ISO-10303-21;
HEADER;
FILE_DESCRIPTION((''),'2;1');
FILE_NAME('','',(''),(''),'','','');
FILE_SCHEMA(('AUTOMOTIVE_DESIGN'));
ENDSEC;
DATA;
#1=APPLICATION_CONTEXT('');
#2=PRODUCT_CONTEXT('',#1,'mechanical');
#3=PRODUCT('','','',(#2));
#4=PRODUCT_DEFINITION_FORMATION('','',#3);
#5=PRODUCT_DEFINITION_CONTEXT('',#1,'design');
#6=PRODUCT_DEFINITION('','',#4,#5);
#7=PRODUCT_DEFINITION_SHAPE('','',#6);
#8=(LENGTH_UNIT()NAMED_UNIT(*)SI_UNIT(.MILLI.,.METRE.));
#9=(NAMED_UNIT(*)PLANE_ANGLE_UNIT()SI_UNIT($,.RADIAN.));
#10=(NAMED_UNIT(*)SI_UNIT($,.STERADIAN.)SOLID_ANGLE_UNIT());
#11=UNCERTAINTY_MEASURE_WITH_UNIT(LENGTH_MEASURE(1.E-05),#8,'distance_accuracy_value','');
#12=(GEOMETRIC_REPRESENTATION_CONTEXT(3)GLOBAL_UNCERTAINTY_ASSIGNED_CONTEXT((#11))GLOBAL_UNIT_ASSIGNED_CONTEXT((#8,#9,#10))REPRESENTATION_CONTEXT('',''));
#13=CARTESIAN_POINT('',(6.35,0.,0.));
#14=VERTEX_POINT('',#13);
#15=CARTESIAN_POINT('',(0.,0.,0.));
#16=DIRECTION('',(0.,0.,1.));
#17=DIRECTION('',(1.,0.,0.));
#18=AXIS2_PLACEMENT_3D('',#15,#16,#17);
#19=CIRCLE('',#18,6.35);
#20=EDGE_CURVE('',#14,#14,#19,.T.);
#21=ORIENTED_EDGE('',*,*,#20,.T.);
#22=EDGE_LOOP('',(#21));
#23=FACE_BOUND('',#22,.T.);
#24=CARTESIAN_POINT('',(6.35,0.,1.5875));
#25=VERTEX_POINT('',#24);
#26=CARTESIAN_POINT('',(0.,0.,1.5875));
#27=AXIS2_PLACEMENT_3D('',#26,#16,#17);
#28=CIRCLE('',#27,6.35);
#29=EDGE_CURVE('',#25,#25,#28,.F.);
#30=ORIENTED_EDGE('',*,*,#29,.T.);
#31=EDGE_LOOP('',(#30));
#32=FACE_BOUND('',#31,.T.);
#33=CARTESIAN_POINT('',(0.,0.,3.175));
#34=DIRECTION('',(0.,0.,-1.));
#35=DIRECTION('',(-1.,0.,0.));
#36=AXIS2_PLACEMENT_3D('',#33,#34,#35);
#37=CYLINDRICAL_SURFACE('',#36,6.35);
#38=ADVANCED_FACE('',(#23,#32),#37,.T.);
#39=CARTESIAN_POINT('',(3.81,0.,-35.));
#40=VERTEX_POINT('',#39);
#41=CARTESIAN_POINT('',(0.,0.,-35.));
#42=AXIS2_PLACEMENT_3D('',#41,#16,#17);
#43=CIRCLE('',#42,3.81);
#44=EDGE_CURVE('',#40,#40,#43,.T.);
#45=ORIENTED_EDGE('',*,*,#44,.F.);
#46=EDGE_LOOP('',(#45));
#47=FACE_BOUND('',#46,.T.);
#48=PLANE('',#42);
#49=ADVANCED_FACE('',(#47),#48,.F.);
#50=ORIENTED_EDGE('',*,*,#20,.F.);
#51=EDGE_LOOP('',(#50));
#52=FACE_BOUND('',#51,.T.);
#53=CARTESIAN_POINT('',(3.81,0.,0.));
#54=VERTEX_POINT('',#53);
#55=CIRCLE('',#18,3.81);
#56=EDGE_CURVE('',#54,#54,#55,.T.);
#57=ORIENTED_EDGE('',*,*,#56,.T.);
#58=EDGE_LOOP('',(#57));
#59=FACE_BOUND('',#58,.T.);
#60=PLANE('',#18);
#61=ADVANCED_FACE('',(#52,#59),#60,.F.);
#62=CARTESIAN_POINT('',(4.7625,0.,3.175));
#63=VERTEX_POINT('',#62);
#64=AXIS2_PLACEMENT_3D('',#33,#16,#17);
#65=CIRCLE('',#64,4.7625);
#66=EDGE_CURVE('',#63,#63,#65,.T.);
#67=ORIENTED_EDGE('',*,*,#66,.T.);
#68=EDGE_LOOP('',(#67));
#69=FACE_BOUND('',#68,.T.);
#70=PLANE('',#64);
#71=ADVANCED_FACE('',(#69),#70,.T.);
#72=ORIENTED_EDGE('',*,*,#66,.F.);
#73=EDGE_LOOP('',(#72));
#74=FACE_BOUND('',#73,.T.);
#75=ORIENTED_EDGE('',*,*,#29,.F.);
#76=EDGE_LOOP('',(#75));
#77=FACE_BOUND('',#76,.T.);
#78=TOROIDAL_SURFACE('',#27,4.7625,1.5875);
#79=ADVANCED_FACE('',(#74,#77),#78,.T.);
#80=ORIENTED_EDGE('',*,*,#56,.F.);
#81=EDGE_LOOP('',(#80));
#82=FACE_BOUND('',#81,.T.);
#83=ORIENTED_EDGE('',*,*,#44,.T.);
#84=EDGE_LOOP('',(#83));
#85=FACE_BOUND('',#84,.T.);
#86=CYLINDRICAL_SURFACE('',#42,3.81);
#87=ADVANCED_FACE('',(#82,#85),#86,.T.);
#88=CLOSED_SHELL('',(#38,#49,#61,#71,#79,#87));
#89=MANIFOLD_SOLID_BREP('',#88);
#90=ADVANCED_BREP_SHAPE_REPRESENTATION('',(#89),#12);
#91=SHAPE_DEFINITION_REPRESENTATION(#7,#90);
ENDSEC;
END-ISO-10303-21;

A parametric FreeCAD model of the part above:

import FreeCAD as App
import Part
import Sketcher
Q = App.Units.Quantity


def edges_at(feature, points):
    """Names of the edges that pass closest to the given points."""
    edges = feature.Shape.Edges
    near = lambda p: min(range(len(edges)), key=lambda i: edges[i].distToShape(Part.Vertex(*p))[0])
    return sorted({f"Edge{near(p) + 1}" for p in points})

doc = App.newDocument("Part")
params = doc.addObject("Spreadsheet::Sheet", "Params")
for row, (alias, value) in enumerate([
    ("sketch1_diameter", "0.3 in"),
    ("pad1_length", "35 mm"),
    ("sketch2_diameter", "0.5 in"),
    ("pad2_length", "0.125 in"),
    ("fillet_radius", "0.0625 in"),
], start=1):
    params.set(f"A{row}", alias)
    params.set(f"B{row}", "=" + value)
    params.setAlias(f"B{row}", alias)

body = doc.addObject("PartDesign::Body", "Body")

# Sketch on XY plane
sketch1 = doc.addObject("Sketcher::SketchObject", "Sketch")
body.addObject(sketch1)
sketch1.AttachmentSupport = (doc.XY_Plane, [""])
sketch1.MapMode = "FlatFace"
sketch1.addGeometry(Part.Circle(App.Vector(0, 0, 0), App.Vector(0, 0, 1), 3.81), False)
sketch1.addConstraint([
    Sketcher.Constraint("Coincident", 0, 3, -1, 1),
    Sketcher.Constraint("Diameter", 0, Q("0.3 in")),
])
sketch1.setExpression("Constraints[1]", "Params.sketch1_diameter")
pad1 = doc.addObject("PartDesign::Pad", "Pad")
body.addObject(pad1)
pad1.Profile = sketch1
pad1.setExpression("Length", "Params.pad1_length")
pad1.Reversed = True

# Sketch on XY plane
sketch2 = doc.addObject("Sketcher::SketchObject", "Sketch001")
body.addObject(sketch2)
sketch2.AttachmentSupport = (doc.XY_Plane, [""])
sketch2.MapMode = "FlatFace"
sketch2.addGeometry(Part.Circle(App.Vector(0, 0, 0), App.Vector(0, 0, 1), 6.35), False)
sketch2.addConstraint([
    Sketcher.Constraint("Coincident", 0, 3, -1, 1),
    Sketcher.Constraint("Diameter", 0, Q("0.5 in")),
])
sketch2.setExpression("Constraints[1]", "Params.sketch2_diameter")
pad2 = doc.addObject("PartDesign::Pad", "Pad001")
body.addObject(pad2)
pad2.Profile = sketch2
pad2.setExpression("Length", "Params.pad2_length")
doc.recompute()

fillet = doc.addObject("PartDesign::Fillet", "Fillet")
body.addObject(fillet)
fillet.Base = (pad2, edges_at(pad2, [(-6.35, 0, 3.175)]))
fillet.setExpression("Radius", "Params.fillet_radius")

doc.recompute()
